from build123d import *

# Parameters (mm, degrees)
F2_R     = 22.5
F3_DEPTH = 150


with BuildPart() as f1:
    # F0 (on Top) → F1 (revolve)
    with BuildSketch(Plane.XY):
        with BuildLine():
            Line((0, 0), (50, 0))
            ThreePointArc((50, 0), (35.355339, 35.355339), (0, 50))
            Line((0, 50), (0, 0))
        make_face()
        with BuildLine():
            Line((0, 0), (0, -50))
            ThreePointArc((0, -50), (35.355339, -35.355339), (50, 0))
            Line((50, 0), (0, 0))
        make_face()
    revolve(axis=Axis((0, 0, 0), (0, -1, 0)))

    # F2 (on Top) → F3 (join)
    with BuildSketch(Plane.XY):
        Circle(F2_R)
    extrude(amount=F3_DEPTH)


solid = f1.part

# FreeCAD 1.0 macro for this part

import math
import FreeCAD as App
import Part
import Sketcher
Q = App.Units.Quantity

doc = App.newDocument("Part")
body = doc.addObject("PartDesign::Body", "Body")

sketch1 = body.newObject("Sketcher::SketchObject", "Sketch")
sketch1.AttachmentSupport = (doc.getObject("XY_Plane"), [""])
sketch1.MapMode = "FlatFace"
sketch1.addGeometry(Part.ArcOfCircle(Part.Circle(App.Vector(0, 0, 0), App.Vector(0, 0, 1), 50), math.radians(0), math.radians(90)), False)
sketch1.addGeometry(Part.LineSegment(App.Vector(0, 50, 0), App.Vector(0, -50, 0)), False)
sketch1.addGeometry(Part.ArcOfCircle(Part.Circle(App.Vector(0, 0, 0), App.Vector(0, 0, 1), 50), math.radians(-90), math.radians(0)), False)
sketch1.addConstraint(Sketcher.Constraint("Coincident", 0, 2, 1, 1))
sketch1.addConstraint(Sketcher.Constraint("Coincident", 1, 2, 2, 1))
sketch1.addConstraint(Sketcher.Constraint("Tangent", 2, 2, 0, 1))
sketch1.addConstraint(Sketcher.Constraint("Vertical", 1))
sketch1.addConstraint(Sketcher.Constraint("Coincident", 0, 3, -1, 1))
sketch1.addConstraint(Sketcher.Constraint("Equal", 0, 2))
sketch1.addConstraint(Sketcher.Constraint("PointOnObject", 0, 2, -2))
sketch1.addConstraint(Sketcher.Constraint("PointOnObject", 2, 2, -1))
sketch1.addConstraint(Sketcher.Constraint("Radius", 0, Q("50 mm")))
revolution = body.newObject("PartDesign::Revolution", "Revolution")
revolution.Profile = sketch1
revolution.ReferenceAxis = (sketch1, ["V_Axis"])
revolution.Angle = 360

sketch2 = body.newObject("Sketcher::SketchObject", "Sketch001")
sketch2.AttachmentSupport = (doc.getObject("XY_Plane"), [""])
sketch2.MapMode = "FlatFace"
sketch2.addGeometry(Part.Circle(App.Vector(0, 0, 0), App.Vector(0, 0, 1), 22), False)
sketch2.addConstraint(Sketcher.Constraint("Coincident", 0, 3, -1, 1))
sketch2.addConstraint(Sketcher.Constraint("Diameter", 0, Q("45 mm")))
pad1 = body.newObject("PartDesign::Pad", "Pad")
pad1.Profile = sketch2
pad1.Length = 150

doc.recompute()
